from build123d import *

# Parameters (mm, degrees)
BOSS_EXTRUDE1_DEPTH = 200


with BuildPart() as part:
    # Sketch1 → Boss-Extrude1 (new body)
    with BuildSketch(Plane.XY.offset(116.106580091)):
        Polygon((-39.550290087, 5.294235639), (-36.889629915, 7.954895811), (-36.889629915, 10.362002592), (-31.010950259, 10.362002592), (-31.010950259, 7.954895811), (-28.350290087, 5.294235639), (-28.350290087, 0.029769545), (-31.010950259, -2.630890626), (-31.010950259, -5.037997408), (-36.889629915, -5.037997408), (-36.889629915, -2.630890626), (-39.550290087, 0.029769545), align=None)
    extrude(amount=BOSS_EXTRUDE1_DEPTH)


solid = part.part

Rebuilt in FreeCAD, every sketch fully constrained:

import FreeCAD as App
import Part
import Sketcher

V = App.Vector

doc = App.newDocument("Part")
params = doc.addObject("Spreadsheet::Sheet", "Params")
for row, (alias, value) in enumerate([
    ("pad1_length", "200 mm"),
], start=1):
    params.set(f"A{row}", alias)
    params.set(f"B{row}", "=" + value)
    params.setAlias(f"B{row}", alias)

body = doc.addObject("PartDesign::Body", "Body")

sketch1 = body.newObject("Sketcher::SketchObject", "Sketch")
sketch1.AttachmentSupport = (doc.getObject("XY_Plane"), [""])
sketch1.MapMode = "FlatFace"
sketch1.AttachmentOffset = App.Placement(V(0, 0, 116.10658), App.Rotation())
sketch1.addGeometry(Part.LineSegment(V(-36.9, 8, 0), V(-39.6, 5.3, 0)), False)
sketch1.addGeometry(Part.LineSegment(V(-39.6, 5.3, 0), V(-39.6, 0, 0)), False)
sketch1.addGeometry(Part.LineSegment(V(-39.6, 0, 0), V(-36.9, -2.6, 0)), False)
sketch1.addGeometry(Part.LineSegment(V(-36.9, -2.6, 0), V(-36.9, -5, 0)), False)
sketch1.addGeometry(Part.LineSegment(V(-36.9, -5, 0), V(-31, -5, 0)), False)
sketch1.addGeometry(Part.LineSegment(V(-31, -5, 0), V(-31, -2.6, 0)), False)
sketch1.addGeometry(Part.LineSegment(V(-31, -2.6, 0), V(-28.4, 0, 0)), False)
sketch1.addGeometry(Part.LineSegment(V(-28.4, 0, 0), V(-28.4, 5.3, 0)), False)
sketch1.addGeometry(Part.LineSegment(V(-28.4, 5.3, 0), V(-31, 8, 0)), False)
sketch1.addGeometry(Part.LineSegment(V(-31, 8, 0), V(-31, 10.4, 0)), False)
sketch1.addGeometry(Part.LineSegment(V(-31, 10.4, 0), V(-36.9, 10.4, 0)), False)
sketch1.addGeometry(Part.LineSegment(V(-36.9, 10.4, 0), V(-36.9, 8, 0)), False)
sketch1.addConstraint(Sketcher.Constraint("Coincident", 0, 2, 1, 1))
sketch1.addConstraint(Sketcher.Constraint("Coincident", 1, 2, 2, 1))
sketch1.addConstraint(Sketcher.Constraint("Coincident", 2, 2, 3, 1))
sketch1.addConstraint(Sketcher.Constraint("Coincident", 3, 2, 4, 1))
sketch1.addConstraint(Sketcher.Constraint("Coincident", 4, 2, 5, 1))
sketch1.addConstraint(Sketcher.Constraint("Coincident", 5, 2, 6, 1))
sketch1.addConstraint(Sketcher.Constraint("Coincident", 6, 2, 7, 1))
sketch1.addConstraint(Sketcher.Constraint("Coincident", 7, 2, 8, 1))
sketch1.addConstraint(Sketcher.Constraint("Coincident", 8, 2, 9, 1))
sketch1.addConstraint(Sketcher.Constraint("Coincident", 9, 2, 10, 1))
sketch1.addConstraint(Sketcher.Constraint("Coincident", 10, 2, 11, 1))
sketch1.addConstraint(Sketcher.Constraint("Coincident", 11, 2, 0, 1))
sketch1.addConstraint(Sketcher.Constraint("Vertical", 1))
sketch1.addConstraint(Sketcher.Constraint("Vertical", 3))
sketch1.addConstraint(Sketcher.Constraint("Horizontal", 4))
sketch1.addConstraint(Sketcher.Constraint("Vertical", 5))
sketch1.addConstraint(Sketcher.Constraint("Vertical", 7))
sketch1.addConstraint(Sketcher.Constraint("Vertical", 9))
sketch1.addConstraint(Sketcher.Constraint("Horizontal", 10))
sketch1.addConstraint(Sketcher.Constraint("Vertical", 11))
sketch1.addConstraint(Sketcher.Constraint("Perpendicular", 0, 2))
sketch1.addConstraint(Sketcher.Constraint("Perpendicular", 2, 6))
sketch1.addConstraint(Sketcher.Constraint("Perpendicular", 6, 8))
sketch1.addConstraint(Sketcher.Constraint("Horizontal", 2, 2, 5, 2))
sketch1.addConstraint(Sketcher.Constraint("Horizontal", 1, 2, 6, 2))
sketch1.addConstraint(Sketcher.Constraint("Horizontal", 0, 2, 7, 2))
sketch1.addConstraint(Sketcher.Constraint("Horizontal", 8, 2, 11, 2))
sketch1.addConstraint(Sketcher.Constraint("Vertical", 5, 2, 8, 2))
sketch1.addConstraint(Sketcher.Constraint("Vertical", 3, 2, 10, 2))
sketch1.addConstraint(Sketcher.Constraint("Equal", 5, 9))
sketch1.addConstraint(Sketcher.Constraint("DistanceX", 1, 2, 6, 2, 11.2))
sketch1.addConstraint(Sketcher.Constraint("DistanceX", 4, 1, 4, 2, 5.87868))
sketch1.addConstraint(Sketcher.Constraint("DistanceY", 1, 2, 1, 1, 5.264466))
sketch1.addConstraint(Sketcher.Constraint("DistanceY", 3, 2, 3, 1, 2.407107))
sketch1.addConstraint(Sketcher.Constraint("DistanceX", 0, 2, -1, 1, 39.55029))
sketch1.addConstraint(Sketcher.Constraint("DistanceY", -1, 1, 1, 2, 0.02977))
pad1 = body.newObject("PartDesign::Pad", "Pad")
pad1.Profile = sketch1
pad1.setExpression("Length", "Params.pad1_length")

doc.recompute()
